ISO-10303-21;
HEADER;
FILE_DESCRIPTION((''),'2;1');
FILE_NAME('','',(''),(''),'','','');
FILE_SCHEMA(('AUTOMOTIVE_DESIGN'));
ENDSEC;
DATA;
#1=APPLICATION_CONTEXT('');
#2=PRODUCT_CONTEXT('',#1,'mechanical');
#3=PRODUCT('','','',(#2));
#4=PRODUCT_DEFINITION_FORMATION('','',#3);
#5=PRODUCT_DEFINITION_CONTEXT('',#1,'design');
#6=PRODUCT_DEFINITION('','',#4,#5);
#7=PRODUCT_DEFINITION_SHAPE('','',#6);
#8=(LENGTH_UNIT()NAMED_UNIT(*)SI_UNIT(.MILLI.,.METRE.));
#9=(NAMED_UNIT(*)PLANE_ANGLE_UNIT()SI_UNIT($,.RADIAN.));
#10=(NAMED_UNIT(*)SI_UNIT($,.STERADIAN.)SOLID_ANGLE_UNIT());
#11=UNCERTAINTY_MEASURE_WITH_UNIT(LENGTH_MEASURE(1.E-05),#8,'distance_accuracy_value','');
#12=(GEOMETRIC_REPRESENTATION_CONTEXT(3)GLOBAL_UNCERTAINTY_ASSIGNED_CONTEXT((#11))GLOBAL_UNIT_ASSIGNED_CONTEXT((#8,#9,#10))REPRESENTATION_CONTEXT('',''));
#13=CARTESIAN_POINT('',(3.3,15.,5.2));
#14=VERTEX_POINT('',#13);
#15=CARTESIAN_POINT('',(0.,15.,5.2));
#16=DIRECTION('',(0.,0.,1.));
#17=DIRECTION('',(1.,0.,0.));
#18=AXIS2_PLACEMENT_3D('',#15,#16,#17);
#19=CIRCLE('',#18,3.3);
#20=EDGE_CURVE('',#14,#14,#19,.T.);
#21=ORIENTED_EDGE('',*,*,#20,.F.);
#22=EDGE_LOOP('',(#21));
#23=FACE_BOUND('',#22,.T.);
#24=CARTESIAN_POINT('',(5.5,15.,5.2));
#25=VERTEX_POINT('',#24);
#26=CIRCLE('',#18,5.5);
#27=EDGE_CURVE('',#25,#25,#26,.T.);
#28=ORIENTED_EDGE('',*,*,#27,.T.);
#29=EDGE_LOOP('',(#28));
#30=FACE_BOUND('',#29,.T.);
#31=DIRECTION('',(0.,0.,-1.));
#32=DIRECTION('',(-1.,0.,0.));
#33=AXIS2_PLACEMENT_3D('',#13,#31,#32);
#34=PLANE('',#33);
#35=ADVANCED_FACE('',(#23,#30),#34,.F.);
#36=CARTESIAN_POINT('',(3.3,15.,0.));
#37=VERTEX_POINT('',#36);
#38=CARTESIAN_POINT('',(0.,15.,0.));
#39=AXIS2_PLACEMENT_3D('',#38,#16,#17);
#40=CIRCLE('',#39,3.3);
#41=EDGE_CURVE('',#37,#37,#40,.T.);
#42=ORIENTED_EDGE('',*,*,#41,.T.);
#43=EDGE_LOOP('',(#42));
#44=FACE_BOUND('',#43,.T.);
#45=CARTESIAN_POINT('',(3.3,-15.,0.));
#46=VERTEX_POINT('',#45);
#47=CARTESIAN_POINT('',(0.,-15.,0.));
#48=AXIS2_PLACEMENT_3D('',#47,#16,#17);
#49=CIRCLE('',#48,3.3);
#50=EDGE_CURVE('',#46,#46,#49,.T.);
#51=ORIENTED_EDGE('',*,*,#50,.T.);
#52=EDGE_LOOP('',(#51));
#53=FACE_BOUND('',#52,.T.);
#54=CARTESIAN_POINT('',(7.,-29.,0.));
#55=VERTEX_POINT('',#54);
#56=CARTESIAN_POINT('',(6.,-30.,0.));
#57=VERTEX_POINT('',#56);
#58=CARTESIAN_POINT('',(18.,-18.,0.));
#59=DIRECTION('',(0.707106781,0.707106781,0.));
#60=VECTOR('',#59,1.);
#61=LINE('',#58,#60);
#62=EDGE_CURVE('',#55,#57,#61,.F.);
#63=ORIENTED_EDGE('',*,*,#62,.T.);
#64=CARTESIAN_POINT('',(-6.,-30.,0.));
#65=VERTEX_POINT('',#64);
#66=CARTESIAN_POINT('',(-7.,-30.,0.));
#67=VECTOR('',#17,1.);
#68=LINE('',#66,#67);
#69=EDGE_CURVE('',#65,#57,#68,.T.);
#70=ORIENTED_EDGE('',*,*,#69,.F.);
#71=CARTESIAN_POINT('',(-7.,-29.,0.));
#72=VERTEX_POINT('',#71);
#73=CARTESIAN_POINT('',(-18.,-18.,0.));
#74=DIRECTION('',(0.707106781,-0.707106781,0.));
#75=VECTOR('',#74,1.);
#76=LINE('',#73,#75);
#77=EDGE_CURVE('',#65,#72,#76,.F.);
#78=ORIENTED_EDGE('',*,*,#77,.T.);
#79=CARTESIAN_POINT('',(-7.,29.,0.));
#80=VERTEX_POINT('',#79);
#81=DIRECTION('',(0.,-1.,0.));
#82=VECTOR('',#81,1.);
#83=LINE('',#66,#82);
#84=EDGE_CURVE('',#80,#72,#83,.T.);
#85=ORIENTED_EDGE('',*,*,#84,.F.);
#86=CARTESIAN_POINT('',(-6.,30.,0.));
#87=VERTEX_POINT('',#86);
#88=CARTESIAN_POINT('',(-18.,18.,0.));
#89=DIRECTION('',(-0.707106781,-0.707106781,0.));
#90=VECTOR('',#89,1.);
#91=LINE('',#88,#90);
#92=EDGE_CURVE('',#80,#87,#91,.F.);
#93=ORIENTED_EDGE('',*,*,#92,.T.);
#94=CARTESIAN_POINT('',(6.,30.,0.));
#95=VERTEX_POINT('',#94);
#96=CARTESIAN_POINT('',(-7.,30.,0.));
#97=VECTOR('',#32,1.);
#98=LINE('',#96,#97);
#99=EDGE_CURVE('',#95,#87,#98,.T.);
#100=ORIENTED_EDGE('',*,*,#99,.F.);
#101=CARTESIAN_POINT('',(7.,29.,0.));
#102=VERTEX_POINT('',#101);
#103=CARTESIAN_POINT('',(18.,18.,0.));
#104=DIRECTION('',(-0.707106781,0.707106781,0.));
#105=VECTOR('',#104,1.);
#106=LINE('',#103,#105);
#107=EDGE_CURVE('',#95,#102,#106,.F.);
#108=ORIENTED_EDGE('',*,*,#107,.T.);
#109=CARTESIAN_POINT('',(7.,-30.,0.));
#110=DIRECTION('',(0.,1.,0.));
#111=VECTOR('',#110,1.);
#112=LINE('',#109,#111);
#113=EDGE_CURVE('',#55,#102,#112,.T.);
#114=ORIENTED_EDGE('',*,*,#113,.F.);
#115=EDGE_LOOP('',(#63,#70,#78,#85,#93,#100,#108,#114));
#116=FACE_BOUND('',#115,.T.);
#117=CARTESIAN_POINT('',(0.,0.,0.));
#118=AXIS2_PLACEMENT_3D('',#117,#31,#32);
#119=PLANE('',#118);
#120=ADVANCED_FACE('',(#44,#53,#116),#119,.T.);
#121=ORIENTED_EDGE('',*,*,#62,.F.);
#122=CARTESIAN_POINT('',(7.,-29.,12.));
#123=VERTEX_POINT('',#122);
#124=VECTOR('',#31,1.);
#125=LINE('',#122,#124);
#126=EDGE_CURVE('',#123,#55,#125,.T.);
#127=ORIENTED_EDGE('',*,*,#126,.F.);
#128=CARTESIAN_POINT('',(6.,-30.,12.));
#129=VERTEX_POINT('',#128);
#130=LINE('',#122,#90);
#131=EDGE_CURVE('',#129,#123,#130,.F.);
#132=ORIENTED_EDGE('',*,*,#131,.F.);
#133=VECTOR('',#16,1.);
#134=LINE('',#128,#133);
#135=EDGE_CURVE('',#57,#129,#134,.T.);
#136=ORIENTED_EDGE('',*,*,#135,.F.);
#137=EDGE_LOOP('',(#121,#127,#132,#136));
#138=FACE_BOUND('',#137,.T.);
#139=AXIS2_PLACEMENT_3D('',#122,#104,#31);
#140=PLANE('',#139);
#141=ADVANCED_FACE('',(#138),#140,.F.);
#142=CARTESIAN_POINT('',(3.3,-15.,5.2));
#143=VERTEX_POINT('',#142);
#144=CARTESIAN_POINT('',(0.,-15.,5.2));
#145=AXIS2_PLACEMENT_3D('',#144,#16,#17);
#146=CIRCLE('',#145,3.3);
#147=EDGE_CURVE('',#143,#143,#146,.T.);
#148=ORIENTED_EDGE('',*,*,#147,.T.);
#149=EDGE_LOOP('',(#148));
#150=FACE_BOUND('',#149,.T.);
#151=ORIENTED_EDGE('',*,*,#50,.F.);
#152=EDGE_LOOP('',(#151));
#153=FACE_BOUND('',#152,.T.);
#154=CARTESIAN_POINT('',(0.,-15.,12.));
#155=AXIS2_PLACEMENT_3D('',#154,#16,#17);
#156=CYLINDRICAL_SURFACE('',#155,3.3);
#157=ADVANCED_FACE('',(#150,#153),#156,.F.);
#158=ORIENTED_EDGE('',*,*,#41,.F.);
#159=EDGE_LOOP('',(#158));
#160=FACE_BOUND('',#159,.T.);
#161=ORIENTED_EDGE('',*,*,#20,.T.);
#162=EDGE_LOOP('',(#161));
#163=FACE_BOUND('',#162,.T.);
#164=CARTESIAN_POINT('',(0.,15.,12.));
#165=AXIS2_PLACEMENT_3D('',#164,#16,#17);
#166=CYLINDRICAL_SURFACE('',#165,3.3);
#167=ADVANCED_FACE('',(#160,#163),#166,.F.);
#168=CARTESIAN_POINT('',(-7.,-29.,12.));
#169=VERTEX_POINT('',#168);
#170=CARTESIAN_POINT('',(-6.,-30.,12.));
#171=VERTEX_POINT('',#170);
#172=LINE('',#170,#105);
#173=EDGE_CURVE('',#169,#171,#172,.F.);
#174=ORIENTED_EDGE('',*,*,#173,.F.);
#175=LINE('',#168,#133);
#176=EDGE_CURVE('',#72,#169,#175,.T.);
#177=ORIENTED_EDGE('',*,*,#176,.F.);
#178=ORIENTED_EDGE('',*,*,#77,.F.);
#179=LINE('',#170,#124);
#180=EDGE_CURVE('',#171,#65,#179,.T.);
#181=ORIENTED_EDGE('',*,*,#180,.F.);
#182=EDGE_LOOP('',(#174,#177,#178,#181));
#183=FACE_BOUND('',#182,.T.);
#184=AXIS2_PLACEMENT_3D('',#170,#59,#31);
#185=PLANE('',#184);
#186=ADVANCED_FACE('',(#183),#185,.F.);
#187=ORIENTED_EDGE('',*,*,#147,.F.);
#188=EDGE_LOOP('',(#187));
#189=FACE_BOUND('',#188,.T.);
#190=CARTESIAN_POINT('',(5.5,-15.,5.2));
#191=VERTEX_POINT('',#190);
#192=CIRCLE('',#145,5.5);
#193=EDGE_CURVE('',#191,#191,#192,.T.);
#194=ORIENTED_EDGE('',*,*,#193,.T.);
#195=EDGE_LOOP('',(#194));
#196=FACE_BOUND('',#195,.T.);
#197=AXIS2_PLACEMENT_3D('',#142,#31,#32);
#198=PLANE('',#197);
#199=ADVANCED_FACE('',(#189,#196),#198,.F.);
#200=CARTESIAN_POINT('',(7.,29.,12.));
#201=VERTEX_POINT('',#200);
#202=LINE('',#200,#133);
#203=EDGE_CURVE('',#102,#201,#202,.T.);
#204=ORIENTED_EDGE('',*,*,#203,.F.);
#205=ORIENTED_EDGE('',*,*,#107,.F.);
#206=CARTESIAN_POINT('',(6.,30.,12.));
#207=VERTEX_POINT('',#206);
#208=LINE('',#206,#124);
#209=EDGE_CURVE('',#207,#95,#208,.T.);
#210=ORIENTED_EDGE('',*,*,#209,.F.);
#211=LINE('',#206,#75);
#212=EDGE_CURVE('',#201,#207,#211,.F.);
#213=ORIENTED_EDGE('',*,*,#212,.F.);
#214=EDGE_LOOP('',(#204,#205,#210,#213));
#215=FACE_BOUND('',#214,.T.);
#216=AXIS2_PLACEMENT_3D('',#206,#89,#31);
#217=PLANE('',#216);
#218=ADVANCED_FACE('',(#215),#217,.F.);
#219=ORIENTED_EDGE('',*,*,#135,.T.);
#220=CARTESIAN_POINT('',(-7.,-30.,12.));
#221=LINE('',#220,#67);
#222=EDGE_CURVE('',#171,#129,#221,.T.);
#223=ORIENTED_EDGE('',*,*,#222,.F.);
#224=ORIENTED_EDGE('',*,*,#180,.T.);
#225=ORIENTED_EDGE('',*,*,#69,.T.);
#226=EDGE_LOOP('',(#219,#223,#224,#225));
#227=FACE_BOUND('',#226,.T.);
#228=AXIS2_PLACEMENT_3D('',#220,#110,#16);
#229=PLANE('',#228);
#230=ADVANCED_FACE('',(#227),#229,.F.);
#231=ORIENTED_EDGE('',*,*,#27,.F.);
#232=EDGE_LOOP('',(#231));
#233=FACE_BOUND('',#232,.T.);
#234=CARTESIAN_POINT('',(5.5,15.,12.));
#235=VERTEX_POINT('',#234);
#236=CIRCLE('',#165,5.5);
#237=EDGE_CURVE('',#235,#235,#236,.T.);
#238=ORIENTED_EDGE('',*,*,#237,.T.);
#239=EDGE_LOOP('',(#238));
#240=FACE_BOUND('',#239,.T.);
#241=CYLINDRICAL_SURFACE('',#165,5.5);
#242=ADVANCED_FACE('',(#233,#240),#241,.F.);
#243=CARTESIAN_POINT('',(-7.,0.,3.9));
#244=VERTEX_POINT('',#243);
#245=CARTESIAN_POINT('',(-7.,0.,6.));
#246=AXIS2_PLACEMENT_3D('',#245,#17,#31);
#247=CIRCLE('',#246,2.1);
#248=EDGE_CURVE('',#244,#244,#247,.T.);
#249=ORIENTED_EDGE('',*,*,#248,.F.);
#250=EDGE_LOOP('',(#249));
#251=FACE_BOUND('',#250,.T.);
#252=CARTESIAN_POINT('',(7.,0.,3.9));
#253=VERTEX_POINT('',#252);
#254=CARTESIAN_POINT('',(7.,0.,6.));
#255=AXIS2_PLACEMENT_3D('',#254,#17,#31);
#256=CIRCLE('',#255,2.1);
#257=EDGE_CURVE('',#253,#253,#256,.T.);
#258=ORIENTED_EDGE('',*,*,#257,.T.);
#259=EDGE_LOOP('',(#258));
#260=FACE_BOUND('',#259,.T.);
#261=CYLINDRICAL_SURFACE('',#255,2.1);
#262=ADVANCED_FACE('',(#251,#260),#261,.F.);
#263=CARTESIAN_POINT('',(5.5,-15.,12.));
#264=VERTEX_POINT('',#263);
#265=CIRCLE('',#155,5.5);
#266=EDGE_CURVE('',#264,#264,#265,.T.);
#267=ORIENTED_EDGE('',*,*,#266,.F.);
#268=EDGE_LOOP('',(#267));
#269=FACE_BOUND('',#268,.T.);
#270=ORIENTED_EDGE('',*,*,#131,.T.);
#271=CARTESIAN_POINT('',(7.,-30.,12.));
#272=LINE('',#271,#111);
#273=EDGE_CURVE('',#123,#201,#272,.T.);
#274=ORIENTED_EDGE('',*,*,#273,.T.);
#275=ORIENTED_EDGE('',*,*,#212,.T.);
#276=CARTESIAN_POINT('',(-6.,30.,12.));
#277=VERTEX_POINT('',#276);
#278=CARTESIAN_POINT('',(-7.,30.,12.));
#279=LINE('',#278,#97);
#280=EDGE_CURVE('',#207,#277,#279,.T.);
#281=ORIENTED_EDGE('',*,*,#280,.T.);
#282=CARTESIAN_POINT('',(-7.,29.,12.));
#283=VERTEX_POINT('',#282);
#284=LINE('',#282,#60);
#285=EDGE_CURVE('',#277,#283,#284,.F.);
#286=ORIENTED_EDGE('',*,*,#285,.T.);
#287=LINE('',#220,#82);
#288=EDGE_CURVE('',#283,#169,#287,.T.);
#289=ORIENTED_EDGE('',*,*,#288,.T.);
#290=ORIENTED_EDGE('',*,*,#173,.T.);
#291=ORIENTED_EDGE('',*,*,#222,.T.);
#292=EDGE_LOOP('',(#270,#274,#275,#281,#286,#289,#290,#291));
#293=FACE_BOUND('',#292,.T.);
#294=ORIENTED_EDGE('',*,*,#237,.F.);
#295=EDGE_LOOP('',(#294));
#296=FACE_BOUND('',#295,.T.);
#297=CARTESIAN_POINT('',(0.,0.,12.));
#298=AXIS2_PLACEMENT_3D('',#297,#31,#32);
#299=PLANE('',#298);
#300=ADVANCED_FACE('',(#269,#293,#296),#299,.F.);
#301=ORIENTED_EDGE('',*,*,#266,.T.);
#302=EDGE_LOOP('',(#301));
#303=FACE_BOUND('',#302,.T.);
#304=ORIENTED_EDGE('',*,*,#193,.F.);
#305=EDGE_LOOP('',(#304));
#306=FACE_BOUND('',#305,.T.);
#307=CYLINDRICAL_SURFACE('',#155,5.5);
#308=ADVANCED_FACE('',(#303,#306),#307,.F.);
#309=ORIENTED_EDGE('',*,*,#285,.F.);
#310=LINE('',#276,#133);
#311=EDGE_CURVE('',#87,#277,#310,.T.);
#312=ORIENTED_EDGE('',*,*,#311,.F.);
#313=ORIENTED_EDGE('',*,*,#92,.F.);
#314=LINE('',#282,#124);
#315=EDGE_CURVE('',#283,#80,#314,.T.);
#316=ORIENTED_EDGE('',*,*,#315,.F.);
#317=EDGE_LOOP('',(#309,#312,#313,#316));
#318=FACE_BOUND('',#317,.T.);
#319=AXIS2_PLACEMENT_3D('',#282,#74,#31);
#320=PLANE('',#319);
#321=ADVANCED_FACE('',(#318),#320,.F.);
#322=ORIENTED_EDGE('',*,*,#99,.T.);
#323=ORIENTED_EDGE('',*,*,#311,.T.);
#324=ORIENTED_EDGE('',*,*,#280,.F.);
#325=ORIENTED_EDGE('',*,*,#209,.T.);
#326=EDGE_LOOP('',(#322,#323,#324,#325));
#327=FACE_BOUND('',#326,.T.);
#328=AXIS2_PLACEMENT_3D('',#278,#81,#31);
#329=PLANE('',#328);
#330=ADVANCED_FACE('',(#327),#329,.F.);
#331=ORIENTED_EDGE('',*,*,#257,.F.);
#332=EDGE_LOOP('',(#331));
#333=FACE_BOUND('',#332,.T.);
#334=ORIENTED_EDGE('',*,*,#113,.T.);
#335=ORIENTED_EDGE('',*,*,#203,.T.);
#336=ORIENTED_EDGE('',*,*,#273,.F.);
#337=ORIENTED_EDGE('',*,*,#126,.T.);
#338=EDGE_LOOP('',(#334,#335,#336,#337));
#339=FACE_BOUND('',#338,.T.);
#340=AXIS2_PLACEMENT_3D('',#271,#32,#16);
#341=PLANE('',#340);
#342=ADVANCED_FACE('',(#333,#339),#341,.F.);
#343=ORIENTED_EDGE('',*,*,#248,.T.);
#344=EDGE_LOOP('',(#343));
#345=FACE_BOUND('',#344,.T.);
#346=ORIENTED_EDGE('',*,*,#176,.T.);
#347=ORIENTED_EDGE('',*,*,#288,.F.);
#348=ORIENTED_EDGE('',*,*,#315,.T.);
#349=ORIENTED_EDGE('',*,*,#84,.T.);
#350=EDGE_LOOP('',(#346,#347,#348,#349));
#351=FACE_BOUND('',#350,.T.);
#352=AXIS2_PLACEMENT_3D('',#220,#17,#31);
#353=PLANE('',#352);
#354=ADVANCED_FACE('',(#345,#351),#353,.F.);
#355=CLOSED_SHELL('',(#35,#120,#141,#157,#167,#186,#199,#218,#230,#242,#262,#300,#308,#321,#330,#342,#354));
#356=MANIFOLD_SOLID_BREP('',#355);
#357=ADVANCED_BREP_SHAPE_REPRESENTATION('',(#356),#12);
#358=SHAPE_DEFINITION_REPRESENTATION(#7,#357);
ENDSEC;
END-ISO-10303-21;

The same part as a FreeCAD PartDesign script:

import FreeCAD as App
import Part
import Sketcher


def edges_at(feature, points):
    """Names of the edges that pass closest to the given points."""
    edges = feature.Shape.Edges
    near = lambda p: min(range(len(edges)), key=lambda i: edges[i].distToShape(Part.Vertex(*p))[0])
    return sorted({f"Edge{near(p) + 1}" for p in points})


def add_polygon(sketch, points):
    """Adds a closed chain of lines whose ends are joined by coincident constraints."""
    first, n = sketch.GeometryCount, len(points)
    for a, b in zip(points, points[1:] + points[:1]):
        sketch.addGeometry(Part.LineSegment(App.Vector(*a, 0), App.Vector(*b, 0)), False)
    for i in range(n):
        sketch.addConstraint(Sketcher.Constraint("Coincident", first + i, 2, first + (i + 1) % n, 1))

doc = App.newDocument("Part")
params = doc.addObject("Spreadsheet::Sheet", "Params")
for row, (alias, value) in enumerate([
    ("sketch1_width", "14 mm"),
    ("sketch1_height", "60 mm"),
    ("pad1_length", "12 mm"),
    ("sketch2_diameter", "6.6 mm"),
    ("hole_diameter", "6.6 mm"),
    ("hole_cbore_diameter", "11 mm"),
    ("hole_cbore_depth", "6.8 mm"),
    ("chamfer_size", "1 mm"),
    ("sketch3_diameter", "4.2 mm"),
    ("hole2_diameter", "4.2 mm"),
], start=1):
    params.set(f"A{row}", alias)
    params.set(f"B{row}", "=" + value)
    params.setAlias(f"B{row}", alias)

body = doc.addObject("PartDesign::Body", "Body")

# Sketch on XY plane
sketch1 = body.newObject("Sketcher::SketchObject", "Sketch")
sketch1.AttachmentSupport = (doc.getObject("XY_Plane"), [""])
sketch1.MapMode = "FlatFace"
add_polygon(sketch1, [(-7, 30), (-7, -30), (7, -30), (7, 30)])  # lines 0-3
sketch1.addConstraint([
    Sketcher.Constraint("Vertical", 0),
    Sketcher.Constraint("Horizontal", 1),
    Sketcher.Constraint("Vertical", 2),
    Sketcher.Constraint("Horizontal", 3),
    Sketcher.Constraint("Symmetric", 0, 2, 2, 2, -1, 1),
    Sketcher.Constraint("DistanceX", 1, 1, 1, 2, 14.0),
    Sketcher.Constraint("DistanceY", 0, 2, 0, 1, 60.0),
])
sketch1.setExpression("Constraints[9]", "Params.sketch1_width")
sketch1.setExpression("Constraints[10]", "Params.sketch1_height")
pad1 = body.newObject("PartDesign::Pad", "Pad")
pad1.Profile = sketch1
pad1.setExpression("Length", "Params.pad1_length")

# Sketch on XY plane
sketch2 = body.newObject("Sketcher::SketchObject", "Sketch001")
sketch2.AttachmentSupport = (doc.getObject("XY_Plane"), [""])
sketch2.MapMode = "FlatFace"
sketch2.AttachmentOffset = App.Placement(App.Vector(0, 0, 12), App.Rotation())
sketch2.addGeometry(Part.Circle(App.Vector(0, 15, 0), App.Vector(0, 0, 1), 3.3), False)
sketch2.addConstraint([
    Sketcher.Constraint("PointOnObject", 0, 3, -2),
    Sketcher.Constraint("Diameter", 0, 6.6),
    Sketcher.Constraint("DistanceY", -1, 1, 0, 3, 15.0),
])
sketch2.setExpression("Constraints[1]", "Params.sketch2_diameter")
doc.recompute()
hole = body.newObject("PartDesign::Hole", "Hole")
hole.Profile = sketch2
hole.ThreadType = "None"
hole.setExpression("Diameter", "Params.hole_diameter")
hole.DepthType = "ThroughAll"
hole.HoleCutType = "Counterbore"
hole.setExpression("HoleCutDiameter", "Params.hole_cbore_diameter")
hole.setExpression("HoleCutDepth", "Params.hole_cbore_depth")
doc.recompute()

mirrored = body.newObject("PartDesign::Mirrored", "Mirrored")
mirrored.Originals = [hole]
mirrored.MirrorPlane = (doc.getObject("XZ_Plane"), [""])
body.Tip = mirrored
doc.recompute()

chamfer = body.newObject("PartDesign::Chamfer", "Chamfer")
chamfer.Base = (mirrored, edges_at(mirrored, [
    (7, -30, 6),
    (-7, -30, 6),
    (-7, 30, 6),
    (7, 30, 6),
]))
chamfer.setExpression("Size", "Params.chamfer_size")

# Sketch on YZ plane
sketch3 = body.newObject("Sketcher::SketchObject", "Sketch002")
sketch3.AttachmentSupport = (doc.getObject("YZ_Plane"), [""])
sketch3.MapMode = "FlatFace"
sketch3.AttachmentOffset = App.Placement(App.Vector(0, 0, 7), App.Rotation())
sketch3.addGeometry(Part.Circle(App.Vector(0, 6, 0), App.Vector(0, 0, 1), 2.1), False)
sketch3.addConstraint([
    Sketcher.Constraint("PointOnObject", 0, 3, -2),
    Sketcher.Constraint("Diameter", 0, 4.2),
    Sketcher.Constraint("DistanceY", -1, 1, 0, 3, 6.0),
])
sketch3.setExpression("Constraints[1]", "Params.sketch3_diameter")
doc.recompute()
hole2 = body.newObject("PartDesign::Hole", "Hole001")
hole2.Profile = sketch3
hole2.ThreadType = "None"
hole2.setExpression("Diameter", "Params.hole2_diameter")
hole2.DepthType = "ThroughAll"

doc.recompute()
